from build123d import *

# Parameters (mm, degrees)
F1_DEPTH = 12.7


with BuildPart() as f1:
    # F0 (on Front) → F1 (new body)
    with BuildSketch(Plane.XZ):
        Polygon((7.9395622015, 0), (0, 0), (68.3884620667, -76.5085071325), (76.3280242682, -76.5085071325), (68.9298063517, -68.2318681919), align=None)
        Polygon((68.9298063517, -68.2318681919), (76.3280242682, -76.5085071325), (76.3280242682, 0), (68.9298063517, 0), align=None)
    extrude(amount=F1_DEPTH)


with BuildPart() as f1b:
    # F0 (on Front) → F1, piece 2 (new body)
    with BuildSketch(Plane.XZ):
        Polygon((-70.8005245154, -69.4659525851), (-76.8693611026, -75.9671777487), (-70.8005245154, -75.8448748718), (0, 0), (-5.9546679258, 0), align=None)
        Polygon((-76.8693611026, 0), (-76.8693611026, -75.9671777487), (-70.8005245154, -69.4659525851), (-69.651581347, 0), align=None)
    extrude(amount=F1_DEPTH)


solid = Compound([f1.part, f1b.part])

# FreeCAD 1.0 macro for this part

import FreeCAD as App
import Part
import Sketcher
from FreeCAD import Vector
Q = App.Units.Quantity


def add_polygon(sketch, points):
    """Adds a closed chain of lines whose ends are joined by coincident constraints."""
    first, n = sketch.GeometryCount, len(points)
    for a, b in zip(points, points[1:] + points[:1]):
        sketch.addGeometry(Part.LineSegment(App.Vector(*a, 0), App.Vector(*b, 0)), False)
    for i in range(n):
        sketch.addConstraint(Sketcher.Constraint("Coincident", first + i, 2, first + (i + 1) % n, 1))

doc = App.newDocument("Part")
body = doc.addObject("PartDesign::Body", "Body")

sketch1 = body.newObject("Sketcher::SketchObject", "Sketch")
sketch1.AttachmentSupport = (doc.getObject("XZ_Plane"), [""])
sketch1.MapMode = "FlatFace"
add_polygon(sketch1, [(68.388462, -76.508507), (76.328024, -76.508507), (76.328024, 0), (68.929806, 0), (68.929806, -68.231868), (7.939562, 0), (0, 0)])
sketch1.addConstraint(Sketcher.Constraint("Horizontal", 0))
sketch1.addConstraint(Sketcher.Constraint("Vertical", 1))
sketch1.addConstraint(Sketcher.Constraint("Horizontal", 2))
sketch1.addConstraint(Sketcher.Constraint("Vertical", 3))
sketch1.addConstraint(Sketcher.Constraint("Horizontal", 5))
sketch1.addConstraint(Sketcher.Constraint("Coincident", 5, 2, -1, 1))
sketch1.addConstraint(Sketcher.Constraint("PointOnObject", 1, 2, -1))
sketch1.addConstraint(Sketcher.Constraint("Parallel", 4, 6))
sketch1.addConstraint(Sketcher.Constraint("Equal", 0, 5))
sketch1.addConstraint(Sketcher.Constraint("Distance", 4, Q("91.517199 mm")))
sketch1.addConstraint(Sketcher.Constraint("DistanceY", 3, 2, 3, 1, Q("68.231868 mm")))
sketch1.addConstraint(Sketcher.Constraint("DistanceX", 4, 2, 6, 2, Q("60.4489 mm")))
sketch1.addConstraint(Sketcher.Constraint("DistanceX", 0, 1, 0, 2, Q("7.939562 mm")))
pad1 = body.newObject("PartDesign::Pad", "Pad")
pad1.Profile = sketch1
pad1.Length = Q("0.5 in")
body2 = doc.addObject("PartDesign::Body", "Body001")

sketch2 = body2.newObject("Sketcher::SketchObject", "Sketch001")
sketch2.AttachmentSupport = (doc.getObject("XZ_Plane001"), [""])
sketch2.MapMode = "FlatFace"
add_polygon(sketch2, [(0, 0), (-5.954668, 0), (-70.800525, -69.465953), (-69.651581, 0), (-76.869361, 0), (-76.869361, -75.967178), (-70.800525, -75.844875)])
sketch2.addConstraint(Sketcher.Constraint("Horizontal", 0))
sketch2.addConstraint(Sketcher.Constraint("Horizontal", 3))
sketch2.addConstraint(Sketcher.Constraint("Vertical", 4))
sketch2.addConstraint(Sketcher.Constraint("Coincident", 6, 2, -1, 1))
sketch2.addConstraint(Sketcher.Constraint("PointOnObject", 2, 2, -1))
sketch2.addConstraint(Sketcher.Constraint("Parallel", 1, 6))
sketch2.addConstraint(Sketcher.Constraint("Vertical", 1, 2, 5, 2))
sketch2.addConstraint(Sketcher.Constraint("DistanceX", 3, 2, 3, 1, Q("7.21778 mm")))
sketch2.addConstraint(Sketcher.Constraint("Distance", 5, Q("6.070069 mm")))
sketch2.addConstraint(Sketcher.Constraint("DistanceX", 0, 2, 0, 1, Q("5.954668 mm")))
sketch2.addConstraint(Sketcher.Constraint("DistanceY", 4, 2, 4, 1, Q("75.967178 mm")))
sketch2.addConstraint(Sketcher.Constraint("DistanceX", 2, 2, -1, 1, Q("69.651581 mm")))
sketch2.addConstraint(Sketcher.Constraint("Distance", 1, Q("95.028962 mm")))
pad2 = body2.newObject("PartDesign::Pad", "Pad001")
pad2.Profile = sketch2
pad2.Length = Q("0.5 in")

doc.recompute()
